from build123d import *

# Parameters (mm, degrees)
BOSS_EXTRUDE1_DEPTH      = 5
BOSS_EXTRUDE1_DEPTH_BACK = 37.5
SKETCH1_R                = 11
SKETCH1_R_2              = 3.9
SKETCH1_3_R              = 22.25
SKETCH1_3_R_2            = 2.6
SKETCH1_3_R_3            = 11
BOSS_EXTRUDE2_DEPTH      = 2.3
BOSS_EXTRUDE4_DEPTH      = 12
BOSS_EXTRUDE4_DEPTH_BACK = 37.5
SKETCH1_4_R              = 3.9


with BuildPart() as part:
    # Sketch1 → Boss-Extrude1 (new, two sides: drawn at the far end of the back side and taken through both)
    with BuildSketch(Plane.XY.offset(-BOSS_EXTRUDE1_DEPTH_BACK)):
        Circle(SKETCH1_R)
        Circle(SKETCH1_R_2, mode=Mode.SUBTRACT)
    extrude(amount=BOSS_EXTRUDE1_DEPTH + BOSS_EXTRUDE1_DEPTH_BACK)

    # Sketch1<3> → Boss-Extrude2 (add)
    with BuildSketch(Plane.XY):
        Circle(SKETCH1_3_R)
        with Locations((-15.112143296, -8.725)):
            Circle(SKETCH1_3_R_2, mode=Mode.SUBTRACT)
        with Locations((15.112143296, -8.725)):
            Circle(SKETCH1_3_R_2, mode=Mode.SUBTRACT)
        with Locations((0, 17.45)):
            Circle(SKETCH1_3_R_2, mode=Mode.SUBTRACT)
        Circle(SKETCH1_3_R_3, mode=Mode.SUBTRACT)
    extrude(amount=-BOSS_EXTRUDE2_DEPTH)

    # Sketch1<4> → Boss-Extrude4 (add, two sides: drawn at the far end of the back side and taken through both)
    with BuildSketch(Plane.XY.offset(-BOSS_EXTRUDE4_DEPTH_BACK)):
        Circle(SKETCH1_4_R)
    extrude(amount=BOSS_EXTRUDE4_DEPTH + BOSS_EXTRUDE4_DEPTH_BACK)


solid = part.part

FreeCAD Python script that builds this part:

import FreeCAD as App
import Part
import Sketcher

V = App.Vector
Q = App.Units.Quantity

doc = App.newDocument("Part")
body = doc.addObject("PartDesign::Body", "Body")

sketch1 = body.newObject("Sketcher::SketchObject", "Sketch")
sketch1.AttachmentSupport = (doc.getObject("XY_Plane"), [""])
sketch1.MapMode = "FlatFace"
sketch1.addGeometry([
    Part.Circle(V(0, 0, 0), V(0, 0, 1), 11),
    Part.Circle(V(0, 0, 0), V(0, 0, 1), 3.9),
], False)
sketch1.addConstraint([
    Sketcher.Constraint("Coincident", 0, 3, -1, 1),
    Sketcher.Constraint("Coincident", 1, 3, -1, 1),
    Sketcher.Constraint("Diameter", 0, Q("22 mm")),
    Sketcher.Constraint("Diameter", 1, Q("7.8 mm")),
])
pad1 = body.newObject("PartDesign::Pad", "Pad")
pad1.Profile = sketch1
pad1.Type = "TwoLengths"
pad1.Length = 5
pad1.Length2 = 37.5

sketch2 = body.newObject("Sketcher::SketchObject", "Sketch001")
sketch2.AttachmentSupport = (doc.getObject("XY_Plane"), [""])
sketch2.MapMode = "FlatFace"
sketch2.addGeometry([
    Part.Circle(V(0, 0, 0), V(0, 0, 1), 22.2),
    Part.Circle(V(-15.1, -8.7, 0), V(0, 0, 1), 2.6),
    Part.Circle(V(15.1, -8.7, 0), V(0, 0, 1), 2.6),
    Part.Circle(V(0, 0, 0), V(0, 0, 1), 11),
    Part.Circle(V(0, 17.4, 0), V(0, 0, 1), 2.6),
], False)
sketch2.addConstraint([
    Sketcher.Constraint("Coincident", 0, 3, -1, 1),
    Sketcher.Constraint("Coincident", 3, 3, -1, 1),
    Sketcher.Constraint("Equal", 1, 2),
    Sketcher.Constraint("Equal", 2, 4),
    Sketcher.Constraint("Symmetric", 1, 3, 2, 3, -2),
    Sketcher.Constraint("PointOnObject", 4, 3, -2),
    Sketcher.Constraint("Diameter", 3, Q("22 mm")),
    Sketcher.Constraint("Diameter", 0, Q("44.5 mm")),
    Sketcher.Constraint("Diameter", 1, Q("5.2 mm")),
    Sketcher.Constraint("DistanceY", -1, 1, 4, 3, Q("17.45 mm")),
    Sketcher.Constraint("DistanceY", 1, 3, -1, 1, Q("8.725 mm")),
    Sketcher.Constraint("DistanceX", 1, 3, -1, 1, Q("15.112143 mm")),
])
pad2 = body.newObject("PartDesign::Pad", "Pad001")
pad2.Profile = sketch2
pad2.Length = 2.3
pad2.Reversed = True

sketch3 = body.newObject("Sketcher::SketchObject", "Sketch002")
sketch3.AttachmentSupport = (doc.getObject("XY_Plane"), [""])
sketch3.MapMode = "FlatFace"
sketch3.addGeometry(Part.Circle(V(0, 0, 0), V(0, 0, 1), 3.9), False)
sketch3.addConstraint([
    Sketcher.Constraint("Coincident", 0, 3, -1, 1),
    Sketcher.Constraint("Diameter", 0, Q("7.8 mm")),
])
pad3 = body.newObject("PartDesign::Pad", "Pad002")
pad3.Profile = sketch3
pad3.Type = "TwoLengths"
pad3.Length = 12
pad3.Length2 = 37.5

doc.recompute()
